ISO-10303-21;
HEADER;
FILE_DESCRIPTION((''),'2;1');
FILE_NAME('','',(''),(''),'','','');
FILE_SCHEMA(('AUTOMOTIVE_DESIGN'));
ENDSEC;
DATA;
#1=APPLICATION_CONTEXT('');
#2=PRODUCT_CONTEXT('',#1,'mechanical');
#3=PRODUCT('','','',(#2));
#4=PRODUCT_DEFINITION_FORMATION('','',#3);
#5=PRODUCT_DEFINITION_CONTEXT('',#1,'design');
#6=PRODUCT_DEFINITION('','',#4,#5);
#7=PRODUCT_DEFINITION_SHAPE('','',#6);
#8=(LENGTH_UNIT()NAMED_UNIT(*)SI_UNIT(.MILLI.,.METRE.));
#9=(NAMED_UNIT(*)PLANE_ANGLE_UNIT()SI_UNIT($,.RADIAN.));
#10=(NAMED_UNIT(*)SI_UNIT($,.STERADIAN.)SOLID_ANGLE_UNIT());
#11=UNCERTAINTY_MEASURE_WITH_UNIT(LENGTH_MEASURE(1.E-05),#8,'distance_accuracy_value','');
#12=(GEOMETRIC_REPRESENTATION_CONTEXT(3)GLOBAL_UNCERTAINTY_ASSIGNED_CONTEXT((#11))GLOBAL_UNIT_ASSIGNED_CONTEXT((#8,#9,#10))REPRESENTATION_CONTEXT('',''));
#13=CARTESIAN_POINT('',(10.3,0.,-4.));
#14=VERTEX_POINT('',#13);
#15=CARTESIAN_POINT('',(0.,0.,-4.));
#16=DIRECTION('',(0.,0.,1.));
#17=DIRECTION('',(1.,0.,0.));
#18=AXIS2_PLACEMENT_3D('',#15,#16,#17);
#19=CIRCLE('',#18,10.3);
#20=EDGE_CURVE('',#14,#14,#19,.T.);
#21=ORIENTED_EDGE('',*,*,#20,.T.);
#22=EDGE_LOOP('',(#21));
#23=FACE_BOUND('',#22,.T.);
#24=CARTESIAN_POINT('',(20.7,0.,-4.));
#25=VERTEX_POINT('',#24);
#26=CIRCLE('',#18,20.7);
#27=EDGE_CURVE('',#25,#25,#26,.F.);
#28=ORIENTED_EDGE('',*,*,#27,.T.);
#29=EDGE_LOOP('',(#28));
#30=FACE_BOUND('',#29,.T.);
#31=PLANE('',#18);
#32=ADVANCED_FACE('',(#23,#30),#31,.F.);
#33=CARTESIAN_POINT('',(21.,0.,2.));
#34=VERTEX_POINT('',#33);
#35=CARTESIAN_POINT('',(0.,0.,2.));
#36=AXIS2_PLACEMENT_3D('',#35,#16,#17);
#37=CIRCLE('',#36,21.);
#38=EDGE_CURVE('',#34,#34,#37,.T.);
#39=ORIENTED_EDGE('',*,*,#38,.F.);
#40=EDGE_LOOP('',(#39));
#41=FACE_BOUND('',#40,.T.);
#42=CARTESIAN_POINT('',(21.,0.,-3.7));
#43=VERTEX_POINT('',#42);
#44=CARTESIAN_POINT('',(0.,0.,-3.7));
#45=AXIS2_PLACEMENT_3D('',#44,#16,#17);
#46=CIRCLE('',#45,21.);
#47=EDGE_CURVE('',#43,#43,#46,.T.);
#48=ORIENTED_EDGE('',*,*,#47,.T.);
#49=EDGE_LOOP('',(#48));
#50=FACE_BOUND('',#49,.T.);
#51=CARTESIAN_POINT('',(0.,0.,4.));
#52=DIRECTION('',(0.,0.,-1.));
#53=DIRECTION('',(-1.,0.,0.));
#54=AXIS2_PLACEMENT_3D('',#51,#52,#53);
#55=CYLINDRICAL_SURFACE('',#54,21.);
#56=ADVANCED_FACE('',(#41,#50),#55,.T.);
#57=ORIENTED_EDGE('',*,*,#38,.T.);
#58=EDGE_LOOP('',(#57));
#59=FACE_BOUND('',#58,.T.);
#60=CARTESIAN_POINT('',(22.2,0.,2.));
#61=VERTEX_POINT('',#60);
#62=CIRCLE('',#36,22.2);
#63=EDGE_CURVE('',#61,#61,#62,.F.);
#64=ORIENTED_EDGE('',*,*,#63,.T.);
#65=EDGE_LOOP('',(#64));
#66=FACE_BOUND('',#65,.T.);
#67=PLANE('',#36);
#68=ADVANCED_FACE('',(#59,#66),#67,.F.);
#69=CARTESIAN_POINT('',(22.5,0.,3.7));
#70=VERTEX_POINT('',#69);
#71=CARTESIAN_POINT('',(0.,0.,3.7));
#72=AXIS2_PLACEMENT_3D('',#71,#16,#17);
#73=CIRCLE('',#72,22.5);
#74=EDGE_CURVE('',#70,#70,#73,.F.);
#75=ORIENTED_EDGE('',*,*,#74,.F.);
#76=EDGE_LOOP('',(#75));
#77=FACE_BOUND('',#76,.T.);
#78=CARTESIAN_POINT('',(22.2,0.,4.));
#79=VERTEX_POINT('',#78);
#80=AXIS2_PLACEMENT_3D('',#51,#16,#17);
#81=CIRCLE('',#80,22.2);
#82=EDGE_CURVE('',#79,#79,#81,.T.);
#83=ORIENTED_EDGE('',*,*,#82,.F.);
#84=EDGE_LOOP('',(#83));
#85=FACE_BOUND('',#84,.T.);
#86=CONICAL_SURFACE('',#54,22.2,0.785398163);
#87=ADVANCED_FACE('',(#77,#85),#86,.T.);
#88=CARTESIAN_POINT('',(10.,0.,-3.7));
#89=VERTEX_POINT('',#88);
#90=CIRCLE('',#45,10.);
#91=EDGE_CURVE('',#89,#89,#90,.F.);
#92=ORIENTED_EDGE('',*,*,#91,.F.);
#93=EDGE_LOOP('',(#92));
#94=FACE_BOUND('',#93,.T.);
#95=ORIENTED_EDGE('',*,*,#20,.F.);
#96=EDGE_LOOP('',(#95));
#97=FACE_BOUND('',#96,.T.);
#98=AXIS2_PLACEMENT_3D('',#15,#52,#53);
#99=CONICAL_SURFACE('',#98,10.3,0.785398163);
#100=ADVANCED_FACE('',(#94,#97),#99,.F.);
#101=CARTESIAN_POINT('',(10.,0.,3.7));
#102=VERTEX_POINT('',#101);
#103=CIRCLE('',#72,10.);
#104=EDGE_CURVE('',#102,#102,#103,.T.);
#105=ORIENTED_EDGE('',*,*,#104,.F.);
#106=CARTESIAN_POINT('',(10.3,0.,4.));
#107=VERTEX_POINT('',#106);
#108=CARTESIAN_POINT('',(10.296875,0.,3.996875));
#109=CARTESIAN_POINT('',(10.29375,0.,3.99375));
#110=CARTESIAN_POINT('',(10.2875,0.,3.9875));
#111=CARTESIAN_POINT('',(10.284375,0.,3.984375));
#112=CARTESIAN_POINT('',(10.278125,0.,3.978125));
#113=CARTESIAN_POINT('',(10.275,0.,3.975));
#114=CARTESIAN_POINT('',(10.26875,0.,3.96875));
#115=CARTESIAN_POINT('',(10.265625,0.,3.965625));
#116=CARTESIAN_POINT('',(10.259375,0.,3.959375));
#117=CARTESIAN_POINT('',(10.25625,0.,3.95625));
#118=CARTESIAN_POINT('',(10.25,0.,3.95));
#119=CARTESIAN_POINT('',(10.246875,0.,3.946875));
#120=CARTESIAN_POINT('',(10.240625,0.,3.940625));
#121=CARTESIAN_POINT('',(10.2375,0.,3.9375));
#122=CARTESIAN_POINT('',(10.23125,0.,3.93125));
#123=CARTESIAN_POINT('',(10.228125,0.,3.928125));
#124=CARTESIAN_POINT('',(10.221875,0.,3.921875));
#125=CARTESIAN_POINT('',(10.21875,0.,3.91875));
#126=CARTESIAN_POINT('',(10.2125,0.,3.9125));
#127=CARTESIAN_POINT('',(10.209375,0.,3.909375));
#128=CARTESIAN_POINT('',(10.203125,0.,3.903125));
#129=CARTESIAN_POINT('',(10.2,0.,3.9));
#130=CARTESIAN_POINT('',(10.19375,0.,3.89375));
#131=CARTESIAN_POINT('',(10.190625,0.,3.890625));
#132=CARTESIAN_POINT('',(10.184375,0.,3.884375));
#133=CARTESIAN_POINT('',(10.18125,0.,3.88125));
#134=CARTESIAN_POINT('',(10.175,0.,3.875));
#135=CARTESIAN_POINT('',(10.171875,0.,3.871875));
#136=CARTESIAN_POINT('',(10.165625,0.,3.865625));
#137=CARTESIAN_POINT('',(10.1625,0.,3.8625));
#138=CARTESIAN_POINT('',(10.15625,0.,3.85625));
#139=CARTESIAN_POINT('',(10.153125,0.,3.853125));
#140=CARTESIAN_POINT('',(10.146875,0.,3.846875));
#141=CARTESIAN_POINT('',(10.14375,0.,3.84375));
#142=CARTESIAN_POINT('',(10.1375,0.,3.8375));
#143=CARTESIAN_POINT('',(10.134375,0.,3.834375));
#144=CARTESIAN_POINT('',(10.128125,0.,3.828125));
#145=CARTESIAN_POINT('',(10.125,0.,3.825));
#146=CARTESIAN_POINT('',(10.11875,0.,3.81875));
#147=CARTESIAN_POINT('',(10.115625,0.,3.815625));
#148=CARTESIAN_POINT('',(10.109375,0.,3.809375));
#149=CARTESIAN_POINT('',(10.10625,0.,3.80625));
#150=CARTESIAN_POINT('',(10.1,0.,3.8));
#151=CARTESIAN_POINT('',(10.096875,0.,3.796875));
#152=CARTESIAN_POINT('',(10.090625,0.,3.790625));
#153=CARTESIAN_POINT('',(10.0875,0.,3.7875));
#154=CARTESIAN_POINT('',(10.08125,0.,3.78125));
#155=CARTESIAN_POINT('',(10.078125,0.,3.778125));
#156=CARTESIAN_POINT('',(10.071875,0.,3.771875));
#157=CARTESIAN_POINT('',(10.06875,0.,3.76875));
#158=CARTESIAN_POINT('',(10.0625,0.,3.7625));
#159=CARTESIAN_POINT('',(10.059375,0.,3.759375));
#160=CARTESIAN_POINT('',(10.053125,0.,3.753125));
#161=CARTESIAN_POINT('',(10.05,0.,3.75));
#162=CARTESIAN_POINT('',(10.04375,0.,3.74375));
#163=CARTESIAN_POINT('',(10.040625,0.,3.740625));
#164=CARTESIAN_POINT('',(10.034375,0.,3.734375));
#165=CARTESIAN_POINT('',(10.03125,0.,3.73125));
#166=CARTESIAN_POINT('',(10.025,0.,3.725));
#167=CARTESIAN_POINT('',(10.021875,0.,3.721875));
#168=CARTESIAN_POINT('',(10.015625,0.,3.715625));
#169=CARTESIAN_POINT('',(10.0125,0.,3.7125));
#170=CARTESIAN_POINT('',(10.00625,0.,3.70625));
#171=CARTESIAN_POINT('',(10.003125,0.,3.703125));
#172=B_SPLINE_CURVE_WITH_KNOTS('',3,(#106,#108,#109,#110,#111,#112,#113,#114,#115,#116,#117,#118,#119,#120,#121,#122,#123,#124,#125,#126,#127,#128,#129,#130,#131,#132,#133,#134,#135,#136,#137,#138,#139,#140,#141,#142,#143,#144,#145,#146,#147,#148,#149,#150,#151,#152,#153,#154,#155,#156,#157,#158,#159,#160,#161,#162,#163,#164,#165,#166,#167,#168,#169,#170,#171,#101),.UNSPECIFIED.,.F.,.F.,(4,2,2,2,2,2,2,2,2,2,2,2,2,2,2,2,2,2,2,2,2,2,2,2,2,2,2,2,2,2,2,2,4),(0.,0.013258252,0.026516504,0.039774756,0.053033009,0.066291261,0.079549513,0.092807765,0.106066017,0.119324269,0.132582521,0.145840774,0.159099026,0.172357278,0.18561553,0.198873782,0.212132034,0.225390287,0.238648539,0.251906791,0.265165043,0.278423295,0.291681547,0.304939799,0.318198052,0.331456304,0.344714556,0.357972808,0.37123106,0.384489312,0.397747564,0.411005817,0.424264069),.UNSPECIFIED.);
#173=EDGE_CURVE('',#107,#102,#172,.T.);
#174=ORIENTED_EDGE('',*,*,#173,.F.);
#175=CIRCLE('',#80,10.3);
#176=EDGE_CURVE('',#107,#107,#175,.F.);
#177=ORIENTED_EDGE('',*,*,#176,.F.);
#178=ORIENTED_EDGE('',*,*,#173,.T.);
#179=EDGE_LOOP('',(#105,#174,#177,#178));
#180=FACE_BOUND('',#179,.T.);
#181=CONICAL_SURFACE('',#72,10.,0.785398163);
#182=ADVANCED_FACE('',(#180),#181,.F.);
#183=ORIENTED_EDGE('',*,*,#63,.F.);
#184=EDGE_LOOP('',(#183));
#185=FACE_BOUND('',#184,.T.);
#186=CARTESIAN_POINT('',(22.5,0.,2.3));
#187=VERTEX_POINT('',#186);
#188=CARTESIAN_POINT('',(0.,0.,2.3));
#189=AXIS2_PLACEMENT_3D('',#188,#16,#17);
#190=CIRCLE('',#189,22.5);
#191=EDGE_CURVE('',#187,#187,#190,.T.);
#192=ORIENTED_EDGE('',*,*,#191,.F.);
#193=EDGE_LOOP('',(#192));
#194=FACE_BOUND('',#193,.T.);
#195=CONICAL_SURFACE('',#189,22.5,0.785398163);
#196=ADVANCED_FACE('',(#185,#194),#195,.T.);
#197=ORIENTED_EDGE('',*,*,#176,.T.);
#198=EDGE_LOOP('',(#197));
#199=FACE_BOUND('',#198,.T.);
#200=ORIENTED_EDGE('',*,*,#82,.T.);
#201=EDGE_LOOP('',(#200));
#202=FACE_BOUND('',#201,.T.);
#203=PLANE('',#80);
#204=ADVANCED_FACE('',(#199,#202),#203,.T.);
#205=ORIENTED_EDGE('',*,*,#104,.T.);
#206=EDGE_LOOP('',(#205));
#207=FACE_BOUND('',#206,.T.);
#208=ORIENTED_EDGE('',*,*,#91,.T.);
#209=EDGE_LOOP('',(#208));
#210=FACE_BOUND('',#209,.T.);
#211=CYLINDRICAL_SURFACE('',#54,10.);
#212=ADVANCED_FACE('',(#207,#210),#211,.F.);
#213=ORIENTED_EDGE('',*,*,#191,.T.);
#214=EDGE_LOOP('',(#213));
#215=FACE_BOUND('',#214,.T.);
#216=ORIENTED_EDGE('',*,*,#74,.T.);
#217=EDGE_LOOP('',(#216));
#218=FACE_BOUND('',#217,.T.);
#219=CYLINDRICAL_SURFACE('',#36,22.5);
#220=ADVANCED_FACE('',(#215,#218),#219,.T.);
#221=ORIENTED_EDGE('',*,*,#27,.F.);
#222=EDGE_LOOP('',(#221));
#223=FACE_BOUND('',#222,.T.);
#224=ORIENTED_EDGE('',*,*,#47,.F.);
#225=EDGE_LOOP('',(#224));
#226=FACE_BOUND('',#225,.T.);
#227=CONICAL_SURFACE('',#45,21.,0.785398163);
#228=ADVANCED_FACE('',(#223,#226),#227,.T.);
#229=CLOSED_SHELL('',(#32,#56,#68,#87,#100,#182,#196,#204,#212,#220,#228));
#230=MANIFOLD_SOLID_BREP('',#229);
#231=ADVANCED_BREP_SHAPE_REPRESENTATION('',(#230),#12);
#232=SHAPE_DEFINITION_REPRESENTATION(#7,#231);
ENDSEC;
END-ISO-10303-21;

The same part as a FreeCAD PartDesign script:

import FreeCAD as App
import Part
import Sketcher

V = App.Vector


def edges_at(feature, points):
    """Names of the edges that pass closest to the given points."""
    edges = feature.Shape.Edges
    near = lambda p: min(range(len(edges)), key=lambda i: edges[i].distToShape(Part.Vertex(*p))[0])
    return sorted({f"Edge{near(p) + 1}" for p in points})

doc = App.newDocument("Part")
body = doc.addObject("PartDesign::Body", "Body")

sketch1 = body.newObject("Sketcher::SketchObject", "Sketch")
sketch1.AttachmentSupport = (doc.getObject("XY_Plane"), [""])
sketch1.MapMode = "FlatFace"
sketch1.addGeometry([
    Part.Circle(V(0, 0, 0), V(0, 0, 1), 21),
    Part.Circle(V(0, 0, 0), V(0, 0, 1), 10),
], False)
sketch1.addConstraint([
    Sketcher.Constraint("Coincident", 0, 3, -1, 1),
    Sketcher.Constraint("Coincident", 1, 3, -1, 1),
    Sketcher.Constraint("Diameter", 0, 42.0),
    Sketcher.Constraint("Diameter", 1, 20.0),
])
pad1 = body.newObject("PartDesign::Pad", "Pad")
pad1.Profile = sketch1
pad1.Length = 8
pad1.Midplane = True

sketch2 = body.newObject("Sketcher::SketchObject", "Sketch001")
sketch2.AttachmentSupport = (doc.getObject("XY_Plane"), [""])
sketch2.MapMode = "FlatFace"
sketch2.AttachmentOffset = App.Placement(V(0, 0, 2), App.Rotation())
sketch2.addGeometry([
    Part.Circle(V(0, 0, 0), V(0, 0, 1), 22),
    Part.Circle(V(0, 0, 0), V(0, 0, 1), 10),
], False)
sketch2.addConstraint([
    Sketcher.Constraint("Coincident", 0, 3, -1, 1),
    Sketcher.Constraint("Coincident", 1, 3, -1, 1),
    Sketcher.Constraint("Diameter", 0, 45.0),
    Sketcher.Constraint("Diameter", 1, 20.0),
])
pad2 = body.newObject("PartDesign::Pad", "Pad001")
pad2.Profile = sketch2
pad2.Length = 2
doc.recompute()

chamfer = body.newObject("PartDesign::Chamfer", "Chamfer")
chamfer.Base = (pad2, edges_at(pad2, [
    (-22.5, 0, 4),
    (-22.5, 0, 2),
    (-21, 0, -4),
    (-10, 0, -4),
    (-10, 0, 4),
]))
chamfer.Size = 0.3

doc.recompute()
